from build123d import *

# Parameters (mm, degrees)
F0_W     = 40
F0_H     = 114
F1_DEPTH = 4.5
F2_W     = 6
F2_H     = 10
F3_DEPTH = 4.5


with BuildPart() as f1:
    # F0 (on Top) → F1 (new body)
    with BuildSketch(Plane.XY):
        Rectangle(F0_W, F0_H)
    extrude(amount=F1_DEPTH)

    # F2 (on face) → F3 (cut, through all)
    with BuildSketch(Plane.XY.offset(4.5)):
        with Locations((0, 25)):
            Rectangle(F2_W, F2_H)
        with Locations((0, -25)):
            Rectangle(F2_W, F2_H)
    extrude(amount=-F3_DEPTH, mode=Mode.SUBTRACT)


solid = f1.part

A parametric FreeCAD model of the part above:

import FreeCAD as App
import Part
import Sketcher

doc = App.newDocument("Part")
body = doc.addObject("PartDesign::Body", "Body")

# Sketch on XY plane
sketch1 = body.newObject("Sketcher::SketchObject", "Sketch")
sketch1.AttachmentSupport = (doc.getObject("XY_Plane"), [""])
sketch1.MapMode = "FlatFace"
sketch1.addGeometry([
    Part.LineSegment(App.Vector(-20, 57, 0), App.Vector(-20, -57, 0)),
    Part.LineSegment(App.Vector(-20, -57, 0), App.Vector(20, -57, 0)),
    Part.LineSegment(App.Vector(20, -57, 0), App.Vector(20, 57, 0)),
    Part.LineSegment(App.Vector(20, 57, 0), App.Vector(-20, 57, 0)),
], False)
sketch1.addConstraint([
    Sketcher.Constraint("Coincident", 0, 2, 1, 1),
    Sketcher.Constraint("Coincident", 1, 2, 2, 1),
    Sketcher.Constraint("Coincident", 2, 2, 3, 1),
    Sketcher.Constraint("Coincident", 3, 2, 0, 1),
    Sketcher.Constraint("Vertical", 0),
    Sketcher.Constraint("Horizontal", 1),
    Sketcher.Constraint("Vertical", 2),
    Sketcher.Constraint("Horizontal", 3),
    Sketcher.Constraint("Symmetric", 0, 2, 2, 2, -1, 1),
    Sketcher.Constraint("DistanceX", 1, 1, 1, 2, 40.0),
    Sketcher.Constraint("DistanceY", 0, 2, 0, 1, 114.0),
])
pad1 = body.newObject("PartDesign::Pad", "Pad")
pad1.Profile = sketch1
pad1.Length = 4.5

# Sketch on XY plane
sketch2 = body.newObject("Sketcher::SketchObject", "Sketch001")
sketch2.AttachmentSupport = (doc.getObject("XY_Plane"), [""])
sketch2.MapMode = "FlatFace"
sketch2.AttachmentOffset = App.Placement(App.Vector(0, 0, 4.5), App.Rotation())
sketch2.addGeometry([
    Part.LineSegment(App.Vector(-3, 30, 0), App.Vector(-3, 20, 0)),  # 0
    Part.LineSegment(App.Vector(-3, 20, 0), App.Vector(3, 20, 0)),  # 1
    Part.LineSegment(App.Vector(3, 20, 0), App.Vector(3, 30, 0)),  # 2
    Part.LineSegment(App.Vector(3, 30, 0), App.Vector(-3, 30, 0)),  # 3
    Part.LineSegment(App.Vector(-3, -20, 0), App.Vector(-3, -30, 0)),  # 4
    Part.LineSegment(App.Vector(-3, -30, 0), App.Vector(3, -30, 0)),  # 5
    Part.LineSegment(App.Vector(3, -30, 0), App.Vector(3, -20, 0)),  # 6
    Part.LineSegment(App.Vector(3, -20, 0), App.Vector(-3, -20, 0)),  # 7
], False)
sketch2.addConstraint([
    Sketcher.Constraint("Coincident", 0, 2, 1, 1),
    Sketcher.Constraint("Coincident", 1, 2, 2, 1),
    Sketcher.Constraint("Coincident", 2, 2, 3, 1),
    Sketcher.Constraint("Coincident", 3, 2, 0, 1),
    Sketcher.Constraint("Coincident", 4, 2, 5, 1),
    Sketcher.Constraint("Coincident", 5, 2, 6, 1),
    Sketcher.Constraint("Coincident", 6, 2, 7, 1),
    Sketcher.Constraint("Coincident", 7, 2, 4, 1),
    Sketcher.Constraint("Vertical", 0),
    Sketcher.Constraint("Horizontal", 1),
    Sketcher.Constraint("Vertical", 2),
    Sketcher.Constraint("Horizontal", 3),
    Sketcher.Constraint("Vertical", 4),
    Sketcher.Constraint("Horizontal", 5),
    Sketcher.Constraint("Vertical", 6),
    Sketcher.Constraint("Horizontal", 7),
    Sketcher.Constraint("Symmetric", 2, 2, 4, 2, -1, 1),
    Sketcher.Constraint("Symmetric", 0, 2, 6, 2, -1, 1),
    Sketcher.Constraint("Vertical", 3, 2, 4, 2),
    Sketcher.Constraint("DistanceX", 1, 1, 1, 2, 6.0),
    Sketcher.Constraint("DistanceY", 0, 2, 0, 1, 10.0),
    Sketcher.Constraint("DistanceY", -1, 1, 0, 2, 20.0),
])
pocket1 = body.newObject("PartDesign::Pocket", "Pocket")
pocket1.Profile = sketch2
pocket1.Type = "ThroughAll"

doc.recompute()
